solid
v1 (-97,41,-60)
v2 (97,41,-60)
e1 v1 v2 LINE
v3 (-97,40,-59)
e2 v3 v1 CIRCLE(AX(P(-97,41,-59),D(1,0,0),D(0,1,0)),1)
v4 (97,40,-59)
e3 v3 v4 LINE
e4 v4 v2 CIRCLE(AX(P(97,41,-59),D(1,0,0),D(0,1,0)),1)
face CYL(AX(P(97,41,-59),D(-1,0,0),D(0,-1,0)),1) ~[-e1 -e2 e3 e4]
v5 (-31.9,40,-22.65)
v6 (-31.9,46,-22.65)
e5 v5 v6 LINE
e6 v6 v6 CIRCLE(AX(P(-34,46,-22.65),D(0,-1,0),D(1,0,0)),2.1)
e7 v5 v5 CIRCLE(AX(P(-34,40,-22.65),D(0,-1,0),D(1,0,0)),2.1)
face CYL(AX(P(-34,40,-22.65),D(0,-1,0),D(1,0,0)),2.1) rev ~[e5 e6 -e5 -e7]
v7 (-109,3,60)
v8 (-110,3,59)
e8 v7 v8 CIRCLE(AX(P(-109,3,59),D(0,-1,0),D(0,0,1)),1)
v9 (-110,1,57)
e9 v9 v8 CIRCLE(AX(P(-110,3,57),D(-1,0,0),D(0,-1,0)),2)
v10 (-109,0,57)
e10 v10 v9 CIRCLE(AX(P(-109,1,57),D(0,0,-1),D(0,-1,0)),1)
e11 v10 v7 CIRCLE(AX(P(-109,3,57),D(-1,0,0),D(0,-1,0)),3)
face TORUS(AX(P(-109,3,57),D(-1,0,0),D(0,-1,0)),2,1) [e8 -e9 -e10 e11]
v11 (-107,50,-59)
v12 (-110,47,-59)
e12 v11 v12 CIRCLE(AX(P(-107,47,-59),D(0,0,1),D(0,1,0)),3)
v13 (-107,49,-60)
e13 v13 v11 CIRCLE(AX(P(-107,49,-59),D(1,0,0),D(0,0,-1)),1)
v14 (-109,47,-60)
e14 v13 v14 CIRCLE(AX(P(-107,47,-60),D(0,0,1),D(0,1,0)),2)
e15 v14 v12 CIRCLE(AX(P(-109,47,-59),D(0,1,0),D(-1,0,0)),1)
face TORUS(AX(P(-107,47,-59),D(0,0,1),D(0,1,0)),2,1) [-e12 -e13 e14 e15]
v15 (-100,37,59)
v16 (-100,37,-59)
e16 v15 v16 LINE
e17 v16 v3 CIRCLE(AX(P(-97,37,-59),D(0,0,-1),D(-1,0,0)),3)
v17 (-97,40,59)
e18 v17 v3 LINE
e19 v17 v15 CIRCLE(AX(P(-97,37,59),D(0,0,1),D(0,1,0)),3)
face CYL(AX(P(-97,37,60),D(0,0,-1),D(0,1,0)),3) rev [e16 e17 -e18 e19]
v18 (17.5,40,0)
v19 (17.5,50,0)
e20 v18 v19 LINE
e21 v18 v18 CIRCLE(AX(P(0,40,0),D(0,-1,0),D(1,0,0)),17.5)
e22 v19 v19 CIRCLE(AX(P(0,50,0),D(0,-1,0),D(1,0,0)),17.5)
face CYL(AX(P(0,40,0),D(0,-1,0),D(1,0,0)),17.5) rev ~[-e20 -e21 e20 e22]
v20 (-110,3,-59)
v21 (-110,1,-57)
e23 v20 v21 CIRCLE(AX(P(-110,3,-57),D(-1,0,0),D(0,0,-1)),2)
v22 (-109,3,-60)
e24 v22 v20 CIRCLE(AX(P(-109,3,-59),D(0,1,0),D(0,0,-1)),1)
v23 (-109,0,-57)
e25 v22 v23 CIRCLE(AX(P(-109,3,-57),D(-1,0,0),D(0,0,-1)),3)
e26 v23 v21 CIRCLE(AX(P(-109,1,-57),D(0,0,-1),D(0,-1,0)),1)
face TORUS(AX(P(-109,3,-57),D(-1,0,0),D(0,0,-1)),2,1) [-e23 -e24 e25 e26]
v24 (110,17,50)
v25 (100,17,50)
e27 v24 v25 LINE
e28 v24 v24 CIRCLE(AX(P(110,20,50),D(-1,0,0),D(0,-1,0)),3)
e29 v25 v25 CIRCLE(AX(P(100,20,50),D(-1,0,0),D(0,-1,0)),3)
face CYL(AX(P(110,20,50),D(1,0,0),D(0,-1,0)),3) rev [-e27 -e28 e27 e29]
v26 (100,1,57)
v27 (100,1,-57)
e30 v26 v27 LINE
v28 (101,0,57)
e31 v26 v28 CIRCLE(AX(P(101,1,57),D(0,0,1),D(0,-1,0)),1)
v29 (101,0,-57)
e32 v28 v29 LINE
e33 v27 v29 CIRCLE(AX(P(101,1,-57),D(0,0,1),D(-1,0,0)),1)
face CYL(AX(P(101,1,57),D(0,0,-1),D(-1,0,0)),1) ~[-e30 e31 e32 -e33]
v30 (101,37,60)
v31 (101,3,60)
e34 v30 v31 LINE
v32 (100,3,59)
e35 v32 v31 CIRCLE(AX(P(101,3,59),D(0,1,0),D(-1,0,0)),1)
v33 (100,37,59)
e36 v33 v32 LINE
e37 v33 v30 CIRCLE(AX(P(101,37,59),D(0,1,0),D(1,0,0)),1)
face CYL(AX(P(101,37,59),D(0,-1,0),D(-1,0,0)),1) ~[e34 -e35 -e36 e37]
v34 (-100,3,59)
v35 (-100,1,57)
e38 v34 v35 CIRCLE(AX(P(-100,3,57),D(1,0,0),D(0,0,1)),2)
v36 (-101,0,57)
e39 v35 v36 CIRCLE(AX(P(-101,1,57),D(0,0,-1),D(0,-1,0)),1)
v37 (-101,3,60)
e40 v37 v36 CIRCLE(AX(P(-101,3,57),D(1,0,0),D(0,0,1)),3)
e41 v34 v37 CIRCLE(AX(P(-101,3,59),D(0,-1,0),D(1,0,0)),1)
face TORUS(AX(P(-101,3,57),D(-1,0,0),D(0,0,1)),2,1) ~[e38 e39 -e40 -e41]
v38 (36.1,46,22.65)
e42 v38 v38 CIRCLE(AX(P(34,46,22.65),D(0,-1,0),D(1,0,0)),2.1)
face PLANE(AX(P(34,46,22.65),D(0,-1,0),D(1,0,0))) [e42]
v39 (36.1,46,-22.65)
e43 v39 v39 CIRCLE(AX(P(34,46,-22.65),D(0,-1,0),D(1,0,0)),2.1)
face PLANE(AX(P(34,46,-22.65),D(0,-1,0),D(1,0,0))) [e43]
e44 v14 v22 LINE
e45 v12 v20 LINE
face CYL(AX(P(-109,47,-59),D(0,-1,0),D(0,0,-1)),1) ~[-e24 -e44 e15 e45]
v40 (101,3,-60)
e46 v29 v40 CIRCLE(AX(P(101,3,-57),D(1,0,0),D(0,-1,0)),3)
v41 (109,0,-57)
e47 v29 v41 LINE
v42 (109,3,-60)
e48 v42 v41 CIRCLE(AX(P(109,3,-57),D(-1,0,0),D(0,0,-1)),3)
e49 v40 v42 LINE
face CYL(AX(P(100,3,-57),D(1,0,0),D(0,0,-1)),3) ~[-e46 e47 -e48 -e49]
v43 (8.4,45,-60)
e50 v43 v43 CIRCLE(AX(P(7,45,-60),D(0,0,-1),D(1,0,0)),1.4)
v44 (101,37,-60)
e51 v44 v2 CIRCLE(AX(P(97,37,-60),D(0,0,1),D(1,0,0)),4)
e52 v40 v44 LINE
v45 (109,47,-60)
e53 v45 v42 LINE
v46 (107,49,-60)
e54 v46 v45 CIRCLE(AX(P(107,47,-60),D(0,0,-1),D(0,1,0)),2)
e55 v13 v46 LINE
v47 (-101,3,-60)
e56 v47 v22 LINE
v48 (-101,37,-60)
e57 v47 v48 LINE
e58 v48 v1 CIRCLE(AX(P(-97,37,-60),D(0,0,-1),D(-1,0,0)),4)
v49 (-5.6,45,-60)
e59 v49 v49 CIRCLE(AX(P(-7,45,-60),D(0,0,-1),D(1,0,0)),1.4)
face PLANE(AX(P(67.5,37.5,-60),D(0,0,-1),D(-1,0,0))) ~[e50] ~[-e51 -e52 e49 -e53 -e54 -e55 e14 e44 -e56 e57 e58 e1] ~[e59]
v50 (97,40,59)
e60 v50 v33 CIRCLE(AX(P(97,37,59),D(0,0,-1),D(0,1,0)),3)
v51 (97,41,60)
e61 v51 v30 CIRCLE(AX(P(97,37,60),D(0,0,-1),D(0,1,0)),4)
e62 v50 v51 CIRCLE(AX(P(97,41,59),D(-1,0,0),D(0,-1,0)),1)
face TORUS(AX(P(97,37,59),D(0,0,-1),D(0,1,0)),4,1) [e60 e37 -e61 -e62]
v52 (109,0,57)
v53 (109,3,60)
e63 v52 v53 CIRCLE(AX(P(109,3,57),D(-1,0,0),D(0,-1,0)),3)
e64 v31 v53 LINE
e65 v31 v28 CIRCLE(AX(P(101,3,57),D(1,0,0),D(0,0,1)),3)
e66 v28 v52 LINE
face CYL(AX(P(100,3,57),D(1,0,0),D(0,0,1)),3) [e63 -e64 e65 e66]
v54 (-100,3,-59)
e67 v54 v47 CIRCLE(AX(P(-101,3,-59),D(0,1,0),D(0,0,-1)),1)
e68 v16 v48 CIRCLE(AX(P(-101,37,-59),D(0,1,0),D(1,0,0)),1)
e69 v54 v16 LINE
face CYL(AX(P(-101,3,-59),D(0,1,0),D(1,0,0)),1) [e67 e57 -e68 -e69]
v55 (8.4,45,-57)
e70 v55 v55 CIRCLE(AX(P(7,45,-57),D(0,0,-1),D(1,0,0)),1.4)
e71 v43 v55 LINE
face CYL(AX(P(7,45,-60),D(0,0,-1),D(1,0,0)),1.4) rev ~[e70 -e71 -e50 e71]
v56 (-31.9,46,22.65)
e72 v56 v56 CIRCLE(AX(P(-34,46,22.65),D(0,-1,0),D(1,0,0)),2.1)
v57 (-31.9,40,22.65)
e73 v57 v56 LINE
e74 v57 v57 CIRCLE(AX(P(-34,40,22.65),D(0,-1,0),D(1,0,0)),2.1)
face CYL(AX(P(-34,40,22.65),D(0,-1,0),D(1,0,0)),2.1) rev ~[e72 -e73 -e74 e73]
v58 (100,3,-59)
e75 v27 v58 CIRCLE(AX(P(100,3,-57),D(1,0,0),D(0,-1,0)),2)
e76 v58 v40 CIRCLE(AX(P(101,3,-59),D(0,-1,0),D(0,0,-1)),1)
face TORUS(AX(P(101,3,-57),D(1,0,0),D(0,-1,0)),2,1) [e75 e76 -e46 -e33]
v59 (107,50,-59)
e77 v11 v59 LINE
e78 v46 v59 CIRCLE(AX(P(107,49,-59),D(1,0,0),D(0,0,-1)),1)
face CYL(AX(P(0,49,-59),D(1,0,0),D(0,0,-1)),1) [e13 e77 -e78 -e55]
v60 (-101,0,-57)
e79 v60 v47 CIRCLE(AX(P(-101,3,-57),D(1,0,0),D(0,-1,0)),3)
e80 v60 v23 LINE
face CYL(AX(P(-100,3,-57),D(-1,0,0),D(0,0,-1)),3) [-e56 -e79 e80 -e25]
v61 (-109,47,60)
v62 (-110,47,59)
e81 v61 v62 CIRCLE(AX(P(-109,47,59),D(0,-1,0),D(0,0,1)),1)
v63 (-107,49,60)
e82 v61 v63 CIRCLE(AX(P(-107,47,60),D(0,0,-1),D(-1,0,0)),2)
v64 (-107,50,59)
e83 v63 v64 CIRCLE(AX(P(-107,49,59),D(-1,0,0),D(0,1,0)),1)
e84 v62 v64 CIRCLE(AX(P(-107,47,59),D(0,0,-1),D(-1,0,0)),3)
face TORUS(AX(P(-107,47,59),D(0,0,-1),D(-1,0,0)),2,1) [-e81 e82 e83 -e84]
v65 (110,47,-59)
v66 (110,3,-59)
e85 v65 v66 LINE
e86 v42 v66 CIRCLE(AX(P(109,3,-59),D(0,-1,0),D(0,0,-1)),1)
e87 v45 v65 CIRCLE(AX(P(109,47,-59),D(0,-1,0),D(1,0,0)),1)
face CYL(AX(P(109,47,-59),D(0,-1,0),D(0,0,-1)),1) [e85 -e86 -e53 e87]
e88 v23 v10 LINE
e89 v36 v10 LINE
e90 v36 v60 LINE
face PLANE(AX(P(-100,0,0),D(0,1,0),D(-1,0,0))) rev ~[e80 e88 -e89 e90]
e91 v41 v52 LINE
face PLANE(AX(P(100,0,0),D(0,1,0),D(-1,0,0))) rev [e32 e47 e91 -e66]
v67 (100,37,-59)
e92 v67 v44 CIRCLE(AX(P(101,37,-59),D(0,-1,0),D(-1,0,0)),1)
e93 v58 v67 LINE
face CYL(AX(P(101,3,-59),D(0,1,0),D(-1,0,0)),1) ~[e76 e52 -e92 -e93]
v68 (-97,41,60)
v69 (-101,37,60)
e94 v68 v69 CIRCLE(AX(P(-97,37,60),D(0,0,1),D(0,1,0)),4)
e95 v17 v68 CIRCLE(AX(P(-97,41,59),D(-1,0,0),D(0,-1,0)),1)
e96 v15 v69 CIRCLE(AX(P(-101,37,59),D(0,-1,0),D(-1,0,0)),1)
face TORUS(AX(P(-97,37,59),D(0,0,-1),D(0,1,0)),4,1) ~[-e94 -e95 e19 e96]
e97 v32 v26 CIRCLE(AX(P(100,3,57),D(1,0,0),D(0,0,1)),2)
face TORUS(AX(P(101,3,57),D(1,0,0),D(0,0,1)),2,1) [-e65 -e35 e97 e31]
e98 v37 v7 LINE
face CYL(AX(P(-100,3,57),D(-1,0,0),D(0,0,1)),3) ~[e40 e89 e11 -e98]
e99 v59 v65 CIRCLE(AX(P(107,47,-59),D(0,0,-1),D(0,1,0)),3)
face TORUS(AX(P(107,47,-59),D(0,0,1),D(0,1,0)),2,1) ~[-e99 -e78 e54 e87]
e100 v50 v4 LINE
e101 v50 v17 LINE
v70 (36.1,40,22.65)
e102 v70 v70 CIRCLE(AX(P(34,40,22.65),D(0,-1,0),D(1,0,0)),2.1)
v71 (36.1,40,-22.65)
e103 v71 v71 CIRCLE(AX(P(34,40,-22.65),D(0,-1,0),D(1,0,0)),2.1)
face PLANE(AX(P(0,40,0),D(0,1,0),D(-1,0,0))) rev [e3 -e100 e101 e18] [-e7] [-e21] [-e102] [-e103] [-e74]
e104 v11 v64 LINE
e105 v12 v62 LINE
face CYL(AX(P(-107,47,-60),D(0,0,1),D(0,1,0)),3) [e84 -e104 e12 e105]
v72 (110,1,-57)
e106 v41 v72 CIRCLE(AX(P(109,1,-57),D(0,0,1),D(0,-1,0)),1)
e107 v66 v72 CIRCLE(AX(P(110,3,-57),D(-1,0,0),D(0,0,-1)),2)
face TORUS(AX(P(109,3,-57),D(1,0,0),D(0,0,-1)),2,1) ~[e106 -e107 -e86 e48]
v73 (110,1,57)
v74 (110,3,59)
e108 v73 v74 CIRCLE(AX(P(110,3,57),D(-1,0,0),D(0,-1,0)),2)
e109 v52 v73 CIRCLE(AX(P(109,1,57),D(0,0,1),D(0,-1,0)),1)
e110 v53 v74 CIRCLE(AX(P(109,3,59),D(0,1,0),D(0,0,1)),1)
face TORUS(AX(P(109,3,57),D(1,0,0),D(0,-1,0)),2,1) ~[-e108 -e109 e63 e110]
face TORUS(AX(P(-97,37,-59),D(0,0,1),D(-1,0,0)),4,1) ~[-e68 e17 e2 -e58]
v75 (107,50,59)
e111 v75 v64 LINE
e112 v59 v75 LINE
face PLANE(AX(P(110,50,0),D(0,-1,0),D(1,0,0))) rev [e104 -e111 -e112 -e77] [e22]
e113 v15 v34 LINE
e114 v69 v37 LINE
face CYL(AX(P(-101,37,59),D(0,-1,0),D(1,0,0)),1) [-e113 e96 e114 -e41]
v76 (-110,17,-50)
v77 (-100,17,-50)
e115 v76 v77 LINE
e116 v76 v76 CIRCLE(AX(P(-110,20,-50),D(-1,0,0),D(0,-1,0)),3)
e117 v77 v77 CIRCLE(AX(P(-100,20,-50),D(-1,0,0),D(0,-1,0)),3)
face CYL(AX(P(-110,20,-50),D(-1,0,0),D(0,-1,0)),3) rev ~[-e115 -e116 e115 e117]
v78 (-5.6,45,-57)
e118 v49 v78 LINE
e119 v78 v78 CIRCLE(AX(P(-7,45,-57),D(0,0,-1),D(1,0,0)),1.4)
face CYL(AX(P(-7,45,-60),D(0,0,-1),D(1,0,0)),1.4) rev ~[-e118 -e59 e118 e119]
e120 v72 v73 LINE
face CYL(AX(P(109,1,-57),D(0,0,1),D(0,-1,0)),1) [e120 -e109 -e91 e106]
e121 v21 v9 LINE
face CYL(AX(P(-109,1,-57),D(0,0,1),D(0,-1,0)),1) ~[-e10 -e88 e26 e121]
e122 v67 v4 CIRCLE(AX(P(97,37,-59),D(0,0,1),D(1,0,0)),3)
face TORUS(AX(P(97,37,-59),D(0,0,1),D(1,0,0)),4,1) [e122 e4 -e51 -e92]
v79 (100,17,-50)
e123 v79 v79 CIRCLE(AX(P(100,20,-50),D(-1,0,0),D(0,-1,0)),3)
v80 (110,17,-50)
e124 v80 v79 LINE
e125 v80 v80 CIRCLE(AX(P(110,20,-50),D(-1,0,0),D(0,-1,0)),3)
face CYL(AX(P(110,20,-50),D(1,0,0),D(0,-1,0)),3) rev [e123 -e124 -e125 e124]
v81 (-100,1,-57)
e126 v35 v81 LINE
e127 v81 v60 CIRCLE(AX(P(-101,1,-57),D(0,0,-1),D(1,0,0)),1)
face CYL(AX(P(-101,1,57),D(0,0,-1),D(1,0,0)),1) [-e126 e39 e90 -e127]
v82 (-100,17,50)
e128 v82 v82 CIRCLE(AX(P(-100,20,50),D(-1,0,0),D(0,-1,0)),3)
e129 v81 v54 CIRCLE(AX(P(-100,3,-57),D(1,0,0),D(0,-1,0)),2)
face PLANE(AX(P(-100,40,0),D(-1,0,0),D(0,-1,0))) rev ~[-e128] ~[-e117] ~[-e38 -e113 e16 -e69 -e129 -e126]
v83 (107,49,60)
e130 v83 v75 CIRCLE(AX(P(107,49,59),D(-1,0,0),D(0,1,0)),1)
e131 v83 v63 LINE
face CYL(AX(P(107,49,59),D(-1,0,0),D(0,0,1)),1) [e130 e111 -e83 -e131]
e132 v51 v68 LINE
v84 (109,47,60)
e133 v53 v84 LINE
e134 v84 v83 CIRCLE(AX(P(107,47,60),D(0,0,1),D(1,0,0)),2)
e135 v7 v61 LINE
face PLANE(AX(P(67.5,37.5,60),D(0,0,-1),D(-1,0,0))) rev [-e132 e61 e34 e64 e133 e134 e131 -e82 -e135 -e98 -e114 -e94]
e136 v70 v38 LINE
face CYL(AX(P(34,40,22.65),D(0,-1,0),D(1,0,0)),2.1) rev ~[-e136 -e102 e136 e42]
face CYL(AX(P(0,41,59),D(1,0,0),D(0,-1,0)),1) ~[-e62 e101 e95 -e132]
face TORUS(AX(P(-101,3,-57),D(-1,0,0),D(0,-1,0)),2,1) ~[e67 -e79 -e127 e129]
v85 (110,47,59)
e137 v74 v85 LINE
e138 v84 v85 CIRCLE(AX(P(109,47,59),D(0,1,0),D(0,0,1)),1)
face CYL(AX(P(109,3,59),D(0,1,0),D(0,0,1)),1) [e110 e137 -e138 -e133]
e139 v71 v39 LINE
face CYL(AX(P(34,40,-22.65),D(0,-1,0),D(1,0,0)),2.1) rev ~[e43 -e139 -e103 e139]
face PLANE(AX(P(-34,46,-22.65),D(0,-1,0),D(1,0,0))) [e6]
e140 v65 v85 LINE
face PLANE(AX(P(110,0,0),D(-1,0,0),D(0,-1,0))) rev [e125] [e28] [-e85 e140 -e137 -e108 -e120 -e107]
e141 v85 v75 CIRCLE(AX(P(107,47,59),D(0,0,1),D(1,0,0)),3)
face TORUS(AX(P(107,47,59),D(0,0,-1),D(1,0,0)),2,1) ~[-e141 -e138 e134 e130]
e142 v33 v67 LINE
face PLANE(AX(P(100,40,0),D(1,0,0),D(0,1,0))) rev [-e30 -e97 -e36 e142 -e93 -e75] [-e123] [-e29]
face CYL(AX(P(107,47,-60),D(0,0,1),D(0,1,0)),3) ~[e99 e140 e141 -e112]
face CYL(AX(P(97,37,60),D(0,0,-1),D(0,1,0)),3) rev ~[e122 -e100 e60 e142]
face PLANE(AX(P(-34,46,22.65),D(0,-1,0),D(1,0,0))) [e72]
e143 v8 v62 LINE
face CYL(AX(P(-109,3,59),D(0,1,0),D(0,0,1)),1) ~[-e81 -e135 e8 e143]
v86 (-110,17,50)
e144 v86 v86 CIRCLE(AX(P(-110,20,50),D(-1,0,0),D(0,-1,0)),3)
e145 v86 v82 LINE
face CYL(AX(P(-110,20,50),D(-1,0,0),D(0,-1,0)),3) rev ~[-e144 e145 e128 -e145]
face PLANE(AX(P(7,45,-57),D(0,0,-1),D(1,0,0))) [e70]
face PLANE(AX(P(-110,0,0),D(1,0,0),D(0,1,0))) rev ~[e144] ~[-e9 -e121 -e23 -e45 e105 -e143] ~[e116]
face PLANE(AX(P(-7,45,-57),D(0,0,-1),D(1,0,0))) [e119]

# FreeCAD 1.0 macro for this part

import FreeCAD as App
import Part
import Sketcher
Q = App.Units.Quantity


def edges_at(feature, points):
    """Names of the edges that pass closest to the given points."""
    edges = feature.Shape.Edges
    near = lambda p: min(range(len(edges)), key=lambda i: edges[i].distToShape(Part.Vertex(*p))[0])
    return sorted({f"Edge{near(p) + 1}" for p in points})


def add_polygon(sketch, points):
    """Adds a closed chain of lines whose ends are joined by coincident constraints."""
    first, n = sketch.GeometryCount, len(points)
    for a, b in zip(points, points[1:] + points[:1]):
        sketch.addGeometry(Part.LineSegment(App.Vector(*a, 0), App.Vector(*b, 0)), False)
    for i in range(n):
        sketch.addConstraint(Sketcher.Constraint("Coincident", first + i, 2, first + (i + 1) % n, 1))

doc = App.newDocument("Part")
body = doc.addObject("PartDesign::Body", "Body")

sketch1 = doc.addObject("Sketcher::SketchObject", "Sketch")
body.addObject(sketch1)
sketch1.AttachmentSupport = (doc.XY_Plane, [""])
sketch1.MapMode = "FlatFace"
add_polygon(sketch1, [(-100, 40), (0, 40), (0, 50), (-110, 50), (-110, 0), (-100, 0)])
sketch1.addConstraint([
    Sketcher.Constraint("Horizontal", 0),
    Sketcher.Constraint("Vertical", 1),
    Sketcher.Constraint("Horizontal", 2),
    Sketcher.Constraint("Vertical", 3),
    Sketcher.Constraint("Horizontal", 4),
    Sketcher.Constraint("Vertical", 5),
    Sketcher.Constraint("PointOnObject", 0, 2, -2),
    Sketcher.Constraint("PointOnObject", 3, 2, -1),
    Sketcher.Constraint("Equal", 4, 1),
    Sketcher.Constraint("DistanceX", 0, 1, 0, 2, Q("100 mm")),
    Sketcher.Constraint("DistanceX", 2, 2, 2, 1, Q("110 mm")),
    Sketcher.Constraint("DistanceY", 3, 2, 3, 1, Q("50 mm")),
])
pad1 = doc.addObject("PartDesign::Pad", "Pad")
body.addObject(pad1)
pad1.Profile = sketch1
pad1.Length = 120
pad1.Midplane = True

sketch2 = doc.addObject("Sketcher::SketchObject", "Sketch001")
body.addObject(sketch2)
sketch2.AttachmentSupport = (doc.YZ_Plane, [""])
sketch2.MapMode = "FlatFace"
sketch2.AttachmentOffset = App.Placement(App.Vector(0, 0, -110), App.Rotation())
sketch2.addGeometry([
    Part.Circle(App.Vector(20, -50, 0), App.Vector(0, 0, 1), 3),
    Part.Circle(App.Vector(20, 50, 0), App.Vector(0, 0, 1), 3),
], False)
sketch2.addConstraint([
    Sketcher.Constraint("Equal", 0, 1),
    Sketcher.Constraint("Symmetric", 0, 3, 1, 3, -1),
    Sketcher.Constraint("Diameter", 0, Q("6 mm")),
    Sketcher.Constraint("DistanceX", -1, 1, 0, 3, Q("20 mm")),
    Sketcher.Constraint("DistanceY", 0, 3, -1, 1, Q("50 mm")),
])
pocket1 = doc.addObject("PartDesign::Pocket", "Pocket")
body.addObject(pocket1)
pocket1.Profile = sketch2
pocket1.Type = "ThroughAll"
pocket1.Reversed = True
doc.recompute()

fillet = doc.addObject("PartDesign::Fillet", "Fillet")
body.addObject(fillet)
fillet.Base = (pocket1, edges_at(pocket1, [
    (-105, 0, -60),
    (-100, 40, 0),
    (-105, 0, 60),
    (-110, 50, 0),
]))
fillet.Radius = 3
doc.recompute()

fillet2 = doc.addObject("PartDesign::Fillet", "Fillet001")
body.addObject(fillet2)
fillet2.Base = (fillet, edges_at(fillet, [(-110, 25, 60), (-100, 0, 0)]))
fillet2.Radius = 1
body2 = doc.addObject("PartDesign::Body", "Body001")
doc.recompute()

body2.BaseFeature = body
doc.recompute()

mirroring = doc.addObject("Part::Mirroring", "Mirroring")
mirroring.Source = body
mirroring.Base = App.Vector(0, 0, 0)
mirroring.Normal = App.Vector(1, 0, 0)
body3 = doc.addObject("PartDesign::Body", "Body002")
body3.BaseFeature = mirroring
boolean = doc.addObject("PartDesign::Boolean", "Boolean")
body2.addObject(boolean)
boolean.Type = "Fuse"
boolean.addObjects([body3])
doc.recompute()

sketch3 = doc.addObject("Sketcher::SketchObject", "Sketch002")
body2.addObject(sketch3)
sketch3.AttachmentSupport = (doc.getObject("XY_Plane001"), [""])
sketch3.MapMode = "FlatFace"
sketch3.AttachmentOffset = App.Placement(App.Vector(0, 0, -60), App.Rotation())
sketch3.addGeometry([
    Part.Circle(App.Vector(-7, 45, 0), App.Vector(0, 0, 1), 1.4),
    Part.Circle(App.Vector(7, 45, 0), App.Vector(0, 0, 1), 1.4),
], False)
sketch3.addConstraint([
    Sketcher.Constraint("Equal", 0, 1),
    Sketcher.Constraint("Symmetric", 0, 3, 1, 3, -2),
    Sketcher.Constraint("Diameter", 0, Q("2.8 mm")),
    Sketcher.Constraint("DistanceX", 0, 3, -1, 1, Q("7 mm")),
    Sketcher.Constraint("DistanceY", -1, 1, 0, 3, Q("45 mm")),
])
pocket2 = doc.addObject("PartDesign::Pocket", "Pocket001")
body2.addObject(pocket2)
pocket2.Profile = sketch3
pocket2.Length = 3
pocket2.Reversed = True

sketch4 = doc.addObject("Sketcher::SketchObject", "Sketch003")
body2.addObject(sketch4)
sketch4.AttachmentSupport = (doc.getObject("XZ_Plane001"), [""])
sketch4.MapMode = "FlatFace"
sketch4.AttachmentOffset = App.Placement(App.Vector(0, 0, -40), App.Rotation())
sketch4.addGeometry(Part.Circle(App.Vector(0, 0, 0), App.Vector(0, 0, 1), 18), False)
sketch4.addConstraint([
    Sketcher.Constraint("Coincident", 0, 3, -1, 1),
    Sketcher.Constraint("Diameter", 0, Q("35 mm")),
])
pocket3 = doc.addObject("PartDesign::Pocket", "Pocket002")
body2.addObject(pocket3)
pocket3.Profile = sketch4
pocket3.Type = "ThroughAll"

sketch5 = doc.addObject("Sketcher::SketchObject", "Sketch004")
body2.addObject(sketch5)
sketch5.AttachmentSupport = (doc.getObject("XZ_Plane001"), [""])
sketch5.MapMode = "FlatFace"
sketch5.AttachmentOffset = App.Placement(App.Vector(0, 0, -40), App.Rotation())
sketch5.addGeometry([
    Part.Circle(App.Vector(-34, 22.6, 0), App.Vector(0, 0, 1), 2.1),
    Part.Circle(App.Vector(-34, -22.6, 0), App.Vector(0, 0, 1), 2.1),
    Part.Circle(App.Vector(34, -22.6, 0), App.Vector(0, 0, 1), 2.1),
    Part.Circle(App.Vector(34, 22.6, 0), App.Vector(0, 0, 1), 2.1),
], False)
sketch5.addConstraint([
    Sketcher.Constraint("Equal", 0, 1),
    Sketcher.Constraint("Equal", 1, 2),
    Sketcher.Constraint("Equal", 2, 3),
    Sketcher.Constraint("Symmetric", 0, 3, 2, 3, -1, 1),
    Sketcher.Constraint("Symmetric", 1, 3, 3, 3, -1, 1),
    Sketcher.Constraint("Symmetric", 1, 3, 2, 3, -2),
    Sketcher.Constraint("Diameter", 0, Q("4.2 mm")),
    Sketcher.Constraint("DistanceX", 0, 3, -1, 1, Q("34 mm")),
    Sketcher.Constraint("DistanceY", 1, 3, 0, 3, Q("45.3 mm")),
])
pocket4 = doc.addObject("PartDesign::Pocket", "Pocket003")
body2.addObject(pocket4)
pocket4.Profile = sketch5
pocket4.Length = 6
mirroring.Visibility = False

doc.recompute()
